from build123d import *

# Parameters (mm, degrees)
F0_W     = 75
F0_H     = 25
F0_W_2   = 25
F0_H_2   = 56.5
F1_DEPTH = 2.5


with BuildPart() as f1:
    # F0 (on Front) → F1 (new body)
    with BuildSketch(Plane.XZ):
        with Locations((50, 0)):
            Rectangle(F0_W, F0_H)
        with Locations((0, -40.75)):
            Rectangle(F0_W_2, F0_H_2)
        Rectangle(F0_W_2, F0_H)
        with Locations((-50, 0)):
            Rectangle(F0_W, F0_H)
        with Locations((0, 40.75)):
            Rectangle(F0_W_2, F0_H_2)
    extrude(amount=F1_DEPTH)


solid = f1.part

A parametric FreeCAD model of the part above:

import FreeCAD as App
import Part
import Sketcher

V = App.Vector


def add_polygon(sketch, points):
    """Adds a closed chain of lines whose ends are joined by coincident constraints."""
    first, n = sketch.GeometryCount, len(points)
    for a, b in zip(points, points[1:] + points[:1]):
        sketch.addGeometry(Part.LineSegment(App.Vector(*a, 0), App.Vector(*b, 0)), False)
    for i in range(n):
        sketch.addConstraint(Sketcher.Constraint("Coincident", first + i, 2, first + (i + 1) % n, 1))

doc = App.newDocument("Part")
body = doc.addObject("PartDesign::Body", "Body")

sketch1 = doc.addObject("Sketcher::SketchObject", "Sketch")
body.addObject(sketch1)
sketch1.AttachmentSupport = (doc.XZ_Plane, [""])
sketch1.MapMode = "FlatFace"
add_polygon(sketch1, [(12, -12), (88, -12), (88, 12), (12, 12), (12, 69), (-12, 69), (-12, 12), (-88, 12), (-88, -12), (-12, -12), (-12, -69), (12, -69)])
sketch1.addConstraint([
    Sketcher.Constraint("Horizontal", 0),
    Sketcher.Constraint("Vertical", 1),
    Sketcher.Constraint("Horizontal", 2),
    Sketcher.Constraint("Vertical", 3),
    Sketcher.Constraint("Horizontal", 4),
    Sketcher.Constraint("Vertical", 5),
    Sketcher.Constraint("Horizontal", 6),
    Sketcher.Constraint("Vertical", 7),
    Sketcher.Constraint("Horizontal", 8),
    Sketcher.Constraint("Vertical", 9),
    Sketcher.Constraint("Horizontal", 10),
    Sketcher.Constraint("Vertical", 11),
    Sketcher.Constraint("Symmetric", 0, 2, 6, 2, -1, 1),
    Sketcher.Constraint("Symmetric", 2, 2, 8, 2, -1, 1),
    Sketcher.Constraint("Symmetric", 4, 2, 10, 2, -1, 1),
    Sketcher.Constraint("Symmetric", 2, 2, 5, 2, -2),
    Sketcher.Constraint("Equal", 10, 1),
    Sketcher.Constraint("DistanceX", 0, 1, 0, 2, 75.0),
    Sketcher.Constraint("DistanceX", 4, 2, 4, 1, 25.0),
    Sketcher.Constraint("DistanceY", 3, 1, 3, 2, 56.5),
])
pad1 = doc.addObject("PartDesign::Pad", "Pad")
body.addObject(pad1)
pad1.Profile = sketch1
pad1.Length = 2.5

doc.recompute()
